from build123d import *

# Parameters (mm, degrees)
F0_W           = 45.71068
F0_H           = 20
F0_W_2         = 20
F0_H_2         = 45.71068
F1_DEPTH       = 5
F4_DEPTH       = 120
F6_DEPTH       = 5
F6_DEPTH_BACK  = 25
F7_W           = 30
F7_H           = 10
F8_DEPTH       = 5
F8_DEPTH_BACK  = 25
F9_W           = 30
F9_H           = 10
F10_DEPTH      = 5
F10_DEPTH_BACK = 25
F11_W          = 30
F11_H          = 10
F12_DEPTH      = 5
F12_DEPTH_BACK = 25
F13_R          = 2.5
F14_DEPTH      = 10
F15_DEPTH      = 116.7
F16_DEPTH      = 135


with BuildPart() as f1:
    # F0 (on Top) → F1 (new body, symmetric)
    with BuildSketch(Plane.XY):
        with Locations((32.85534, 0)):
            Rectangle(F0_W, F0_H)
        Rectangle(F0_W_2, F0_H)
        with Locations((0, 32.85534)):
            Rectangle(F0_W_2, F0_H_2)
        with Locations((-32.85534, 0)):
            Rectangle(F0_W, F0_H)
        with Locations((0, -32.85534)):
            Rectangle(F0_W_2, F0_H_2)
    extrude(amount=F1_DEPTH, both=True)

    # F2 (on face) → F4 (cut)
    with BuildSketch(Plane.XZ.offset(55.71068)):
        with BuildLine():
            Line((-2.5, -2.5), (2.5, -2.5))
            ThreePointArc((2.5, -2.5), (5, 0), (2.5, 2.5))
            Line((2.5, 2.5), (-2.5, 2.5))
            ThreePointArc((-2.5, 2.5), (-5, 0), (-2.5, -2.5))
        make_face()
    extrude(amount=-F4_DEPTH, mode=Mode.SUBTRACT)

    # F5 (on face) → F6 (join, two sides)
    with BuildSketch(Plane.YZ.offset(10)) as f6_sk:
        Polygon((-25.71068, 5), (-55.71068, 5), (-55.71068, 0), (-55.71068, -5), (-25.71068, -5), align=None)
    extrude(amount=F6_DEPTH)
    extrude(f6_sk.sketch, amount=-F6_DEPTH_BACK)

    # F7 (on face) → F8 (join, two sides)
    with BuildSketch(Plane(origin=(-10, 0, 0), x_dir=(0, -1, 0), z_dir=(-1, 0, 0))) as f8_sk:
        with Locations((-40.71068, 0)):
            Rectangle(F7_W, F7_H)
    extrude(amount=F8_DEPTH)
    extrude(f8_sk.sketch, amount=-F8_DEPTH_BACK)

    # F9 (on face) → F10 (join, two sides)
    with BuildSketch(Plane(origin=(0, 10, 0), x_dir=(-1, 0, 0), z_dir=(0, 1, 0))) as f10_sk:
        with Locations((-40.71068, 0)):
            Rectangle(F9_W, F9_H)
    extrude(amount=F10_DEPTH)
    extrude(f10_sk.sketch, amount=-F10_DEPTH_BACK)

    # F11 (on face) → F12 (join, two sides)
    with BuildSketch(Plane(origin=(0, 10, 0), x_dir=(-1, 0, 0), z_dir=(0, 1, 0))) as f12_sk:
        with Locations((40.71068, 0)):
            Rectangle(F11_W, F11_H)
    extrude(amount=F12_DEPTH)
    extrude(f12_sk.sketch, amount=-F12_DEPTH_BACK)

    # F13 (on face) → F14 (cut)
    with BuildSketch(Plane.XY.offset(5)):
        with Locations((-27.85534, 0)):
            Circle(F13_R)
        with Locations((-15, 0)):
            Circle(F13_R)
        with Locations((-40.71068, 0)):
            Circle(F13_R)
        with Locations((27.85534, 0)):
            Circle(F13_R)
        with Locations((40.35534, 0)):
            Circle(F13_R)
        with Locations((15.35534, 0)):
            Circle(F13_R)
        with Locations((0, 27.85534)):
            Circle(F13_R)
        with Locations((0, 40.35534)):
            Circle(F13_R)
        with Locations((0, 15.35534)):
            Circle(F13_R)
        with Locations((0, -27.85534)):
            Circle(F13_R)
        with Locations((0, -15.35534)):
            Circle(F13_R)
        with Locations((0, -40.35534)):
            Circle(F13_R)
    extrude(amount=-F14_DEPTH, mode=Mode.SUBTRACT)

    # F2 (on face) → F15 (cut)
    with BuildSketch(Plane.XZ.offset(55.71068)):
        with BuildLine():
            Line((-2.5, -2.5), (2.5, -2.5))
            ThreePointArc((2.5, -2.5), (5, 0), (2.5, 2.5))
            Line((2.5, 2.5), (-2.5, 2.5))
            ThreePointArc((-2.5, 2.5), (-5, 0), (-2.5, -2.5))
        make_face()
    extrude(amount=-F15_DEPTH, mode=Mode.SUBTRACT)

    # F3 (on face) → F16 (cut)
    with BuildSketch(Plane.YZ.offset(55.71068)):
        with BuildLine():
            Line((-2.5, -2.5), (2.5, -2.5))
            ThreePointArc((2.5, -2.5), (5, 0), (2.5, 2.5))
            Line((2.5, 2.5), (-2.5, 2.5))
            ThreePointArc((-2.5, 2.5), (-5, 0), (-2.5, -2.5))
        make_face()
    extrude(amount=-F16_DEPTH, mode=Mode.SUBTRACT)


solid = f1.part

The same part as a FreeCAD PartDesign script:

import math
import FreeCAD as App
import Part
import Sketcher
Q = App.Units.Quantity


def add_polygon(sketch, points):
    """Adds a closed chain of lines whose ends are joined by coincident constraints."""
    first, n = sketch.GeometryCount, len(points)
    for a, b in zip(points, points[1:] + points[:1]):
        sketch.addGeometry(Part.LineSegment(App.Vector(*a, 0), App.Vector(*b, 0)), False)
    for i in range(n):
        sketch.addConstraint(Sketcher.Constraint("Coincident", first + i, 2, first + (i + 1) % n, 1))

doc = App.newDocument("Part")
body = doc.addObject("PartDesign::Body", "Body")

sketch1 = body.newObject("Sketcher::SketchObject", "Sketch")
sketch1.AttachmentSupport = (doc.getObject("XY_Plane"), [""])
sketch1.MapMode = "FlatFace"
add_polygon(sketch1, [(56, -10), (56, 10), (10, 10), (10, 56), (-10, 56), (-10, 10), (-56, 10), (-56, -10), (-10, -10), (-10, -56), (10, -56), (10, -10)])
sketch1.addConstraint([
    Sketcher.Constraint("Vertical", 0),
    Sketcher.Constraint("Horizontal", 1),
    Sketcher.Constraint("Vertical", 2),
    Sketcher.Constraint("Horizontal", 3),
    Sketcher.Constraint("Vertical", 4),
    Sketcher.Constraint("Horizontal", 5),
    Sketcher.Constraint("Vertical", 6),
    Sketcher.Constraint("Horizontal", 7),
    Sketcher.Constraint("Vertical", 8),
    Sketcher.Constraint("Horizontal", 9),
    Sketcher.Constraint("Vertical", 10),
    Sketcher.Constraint("Horizontal", 11),
    Sketcher.Constraint("Symmetric", 0, 2, 6, 2, -1, 1),
    Sketcher.Constraint("Symmetric", 2, 2, 8, 2, -1, 1),
    Sketcher.Constraint("Symmetric", 4, 2, 10, 2, -1, 1),
    Sketcher.Constraint("Symmetric", 1, 2, 4, 2, -2),
    Sketcher.Constraint("Equal", 9, 0),
    Sketcher.Constraint("Equal", 11, 2),
    Sketcher.Constraint("DistanceX", 3, 2, 3, 1, Q("20 mm")),
    Sketcher.Constraint("DistanceX", 1, 2, 1, 1, Q("45.71068 mm")),
])
pad1 = body.newObject("PartDesign::Pad", "Pad")
pad1.Profile = sketch1
pad1.Length = 10
pad1.Midplane = True

sketch2 = body.newObject("Sketcher::SketchObject", "Sketch001")
sketch2.AttachmentSupport = (doc.getObject("XZ_Plane"), [""])
sketch2.MapMode = "FlatFace"
sketch2.AttachmentOffset = App.Placement(App.Vector(0, 0, 55.71068), App.Rotation())
sketch2.addGeometry([
    Part.LineSegment(App.Vector(-2.5, -2.5, 0), App.Vector(2.5, -2.5, 0)),
    Part.ArcOfCircle(Part.Circle(App.Vector(2.5, 0, 0), App.Vector(0, 0, 1), 2.5), math.radians(-90), math.radians(90)),
    Part.LineSegment(App.Vector(2.5, 2.5, 0), App.Vector(-2.5, 2.5, 0)),
    Part.ArcOfCircle(Part.Circle(App.Vector(-2.5, 0, 0), App.Vector(0, 0, 1), 2.5), math.radians(90), math.radians(270)),
], False)
sketch2.addConstraint([
    Sketcher.Constraint("Tangent", 0, 2, 1, 1),
    Sketcher.Constraint("Tangent", 1, 2, 2, 1),
    Sketcher.Constraint("Tangent", 2, 2, 3, 1),
    Sketcher.Constraint("Tangent", 3, 2, 0, 1),
    Sketcher.Constraint("Horizontal", 0),
    Sketcher.Constraint("Horizontal", 2),
    Sketcher.Constraint("Symmetric", 1, 3, 3, 3, -1, 1),
    Sketcher.Constraint("Radius", 1, Q("2.5 mm")),
    Sketcher.Constraint("DistanceX", 0, 1, 0, 2, Q("5 mm")),
])
pocket1 = body.newObject("PartDesign::Pocket", "Pocket")
pocket1.Profile = sketch2
pocket1.Length = 120

sketch3 = body.newObject("Sketcher::SketchObject", "Sketch002")
sketch3.AttachmentSupport = (doc.getObject("YZ_Plane"), [""])
sketch3.MapMode = "FlatFace"
sketch3.AttachmentOffset = App.Placement(App.Vector(0, 0, 10), App.Rotation())
add_polygon(sketch3, [(-26, 5), (-56, 5), (-56, -5), (-26, -5)])
sketch3.addConstraint([
    Sketcher.Constraint("Horizontal", 0),
    Sketcher.Constraint("Vertical", 1),
    Sketcher.Constraint("Horizontal", 2),
    Sketcher.Constraint("Vertical", 3),
    Sketcher.Constraint("DistanceX", 0, 2, 0, 1, Q("30 mm")),
    Sketcher.Constraint("DistanceY", 1, 2, 1, 1, Q("10 mm")),
    Sketcher.Constraint("DistanceY", -1, 1, 0, 2, Q("5 mm")),
    Sketcher.Constraint("DistanceX", 0, 2, -1, 1, Q("55.71068 mm")),
])
pad2 = body.newObject("PartDesign::Pad", "Pad001")
pad2.Profile = sketch3
pad2.Type = "TwoLengths"
pad2.Length = 5
pad2.Length2 = 25

sketch4 = body.newObject("Sketcher::SketchObject", "Sketch003")
sketch4.AttachmentSupport = (doc.getObject("YZ_Plane"), [""])
sketch4.MapMode = "FlatFace"
sketch4.AttachmentOffset = App.Placement(App.Vector(0, 0, -10), App.Rotation())
add_polygon(sketch4, [(56, 5), (56, -5), (26, -5), (26, 5)])
sketch4.addConstraint([
    Sketcher.Constraint("Vertical", 0),
    Sketcher.Constraint("Horizontal", 1),
    Sketcher.Constraint("Vertical", 2),
    Sketcher.Constraint("Horizontal", 3),
    Sketcher.Constraint("DistanceX", 1, 2, 1, 1, Q("30 mm")),
    Sketcher.Constraint("DistanceY", 0, 2, 0, 1, Q("10 mm")),
    Sketcher.Constraint("DistanceY", 0, 2, -1, 1, Q("5 mm")),
    Sketcher.Constraint("DistanceX", -1, 1, 0, 2, Q("55.71068 mm")),
])
pad3 = body.newObject("PartDesign::Pad", "Pad002")
pad3.Profile = sketch4
pad3.Type = "TwoLengths"
pad3.Length = 5
pad3.Length2 = 25
pad3.Reversed = True

sketch5 = body.newObject("Sketcher::SketchObject", "Sketch004")
sketch5.AttachmentSupport = (doc.getObject("XZ_Plane"), [""])
sketch5.MapMode = "FlatFace"
sketch5.AttachmentOffset = App.Placement(App.Vector(0, 0, -10), App.Rotation())
add_polygon(sketch5, [(56, 5), (56, -5), (26, -5), (26, 5)])
sketch5.addConstraint([
    Sketcher.Constraint("Vertical", 0),
    Sketcher.Constraint("Horizontal", 1),
    Sketcher.Constraint("Vertical", 2),
    Sketcher.Constraint("Horizontal", 3),
    Sketcher.Constraint("DistanceX", 1, 2, 1, 1, Q("30 mm")),
    Sketcher.Constraint("DistanceY", 0, 2, 0, 1, Q("10 mm")),
    Sketcher.Constraint("DistanceY", 0, 2, -1, 1, Q("5 mm")),
    Sketcher.Constraint("DistanceX", -1, 1, 0, 2, Q("55.71068 mm")),
])
pad4 = body.newObject("PartDesign::Pad", "Pad003")
pad4.Profile = sketch5
pad4.Type = "TwoLengths"
pad4.Length = 5
pad4.Length2 = 25
pad4.Reversed = True

sketch6 = body.newObject("Sketcher::SketchObject", "Sketch005")
sketch6.AttachmentSupport = (doc.getObject("XZ_Plane"), [""])
sketch6.MapMode = "FlatFace"
sketch6.AttachmentOffset = App.Placement(App.Vector(0, 0, -10), App.Rotation())
add_polygon(sketch6, [(-26, 5), (-26, -5), (-56, -5), (-56, 5)])
sketch6.addConstraint([
    Sketcher.Constraint("Vertical", 0),
    Sketcher.Constraint("Horizontal", 1),
    Sketcher.Constraint("Vertical", 2),
    Sketcher.Constraint("Horizontal", 3),
    Sketcher.Constraint("DistanceX", 1, 2, 1, 1, Q("30 mm")),
    Sketcher.Constraint("DistanceY", 0, 2, 0, 1, Q("10 mm")),
    Sketcher.Constraint("DistanceY", 0, 2, -1, 1, Q("5 mm")),
    Sketcher.Constraint("DistanceX", 0, 2, -1, 1, Q("25.71068 mm")),
])
pad5 = body.newObject("PartDesign::Pad", "Pad004")
pad5.Profile = sketch6
pad5.Type = "TwoLengths"
pad5.Length = 5
pad5.Length2 = 25
pad5.Reversed = True

sketch7 = body.newObject("Sketcher::SketchObject", "Sketch006")
sketch7.AttachmentSupport = (doc.getObject("XY_Plane"), [""])
sketch7.MapMode = "FlatFace"
sketch7.AttachmentOffset = App.Placement(App.Vector(0, 0, 5), App.Rotation())
sketch7.addGeometry([
    Part.Circle(App.Vector(-27.9, 0, 0), App.Vector(0, 0, 1), 2.5),
    Part.Circle(App.Vector(-15, 0, 0), App.Vector(0, 0, 1), 2.5),
    Part.Circle(App.Vector(-40.7, 0, 0), App.Vector(0, 0, 1), 2.5),
    Part.Circle(App.Vector(27.9, 0, 0), App.Vector(0, 0, 1), 2.5),
    Part.Circle(App.Vector(40.4, 0, 0), App.Vector(0, 0, 1), 2.5),
    Part.Circle(App.Vector(15.4, 0, 0), App.Vector(0, 0, 1), 2.5),
    Part.Circle(App.Vector(0, 27.9, 0), App.Vector(0, 0, 1), 2.5),
    Part.Circle(App.Vector(0, 40.4, 0), App.Vector(0, 0, 1), 2.5),
    Part.Circle(App.Vector(0, 15.4, 0), App.Vector(0, 0, 1), 2.5),
    Part.Circle(App.Vector(0, -27.9, 0), App.Vector(0, 0, 1), 2.5),
    Part.Circle(App.Vector(0, -15.4, 0), App.Vector(0, 0, 1), 2.5),
    Part.Circle(App.Vector(0, -40.4, 0), App.Vector(0, 0, 1), 2.5),
], False)
sketch7.addConstraint([
    Sketcher.Constraint("Equal", 0, 1),
    Sketcher.Constraint("Equal", 1, 2),
    Sketcher.Constraint("Equal", 2, 3),
    Sketcher.Constraint("Equal", 3, 4),
    Sketcher.Constraint("Equal", 4, 5),
    Sketcher.Constraint("Equal", 5, 6),
    Sketcher.Constraint("Equal", 6, 7),
    Sketcher.Constraint("Equal", 7, 8),
    Sketcher.Constraint("Equal", 8, 9),
    Sketcher.Constraint("Equal", 9, 10),
    Sketcher.Constraint("Equal", 10, 11),
    Sketcher.Constraint("Symmetric", 0, 3, 3, 3, -1, 1),
    Sketcher.Constraint("Symmetric", 6, 3, 9, 3, -1, 1),
    Sketcher.Constraint("Symmetric", 8, 3, 10, 3, -1, 1),
    Sketcher.Constraint("Symmetric", 7, 3, 11, 3, -1, 1),
    Sketcher.Constraint("PointOnObject", 0, 3, -1),
    Sketcher.Constraint("PointOnObject", 1, 3, -1),
    Sketcher.Constraint("PointOnObject", 2, 3, -1),
    Sketcher.Constraint("PointOnObject", 4, 3, -1),
    Sketcher.Constraint("PointOnObject", 5, 3, -1),
    Sketcher.Constraint("PointOnObject", 6, 3, -2),
    Sketcher.Constraint("PointOnObject", 7, 3, -2),
    Sketcher.Constraint("PointOnObject", 8, 3, -2),
    Sketcher.Constraint("Diameter", 0, Q("5 mm")),
    Sketcher.Constraint("DistanceX", 1, 3, -1, 1, Q("15 mm")),
    Sketcher.Constraint("DistanceX", 5, 3, 4, 3, Q("25 mm")),
    Sketcher.Constraint("DistanceY", 8, 3, 7, 3, Q("25 mm")),
    Sketcher.Constraint("DistanceX", 3, 3, 4, 3, Q("12.5 mm")),
    Sketcher.Constraint("DistanceY", 6, 3, 7, 3, Q("12.5 mm")),
    Sketcher.Constraint("DistanceX", 0, 3, -1, 1, Q("27.85534 mm")),
    Sketcher.Constraint("DistanceX", 2, 3, -1, 1, Q("40.71068 mm")),
    Sketcher.Constraint("DistanceY", -1, 1, 6, 3, Q("27.85534 mm")),
])
pocket2 = body.newObject("PartDesign::Pocket", "Pocket001")
pocket2.Profile = sketch7
pocket2.Length = 10

sketch8 = body.newObject("Sketcher::SketchObject", "Sketch007")
sketch8.AttachmentSupport = (doc.getObject("XZ_Plane"), [""])
sketch8.MapMode = "FlatFace"
sketch8.AttachmentOffset = App.Placement(App.Vector(0, 0, 55.71068), App.Rotation())
sketch8.addGeometry([
    Part.LineSegment(App.Vector(-2.5, -2.5, 0), App.Vector(2.5, -2.5, 0)),
    Part.ArcOfCircle(Part.Circle(App.Vector(2.5, 0, 0), App.Vector(0, 0, 1), 2.5), math.radians(-90), math.radians(90)),
    Part.LineSegment(App.Vector(2.5, 2.5, 0), App.Vector(-2.5, 2.5, 0)),
    Part.ArcOfCircle(Part.Circle(App.Vector(-2.5, 0, 0), App.Vector(0, 0, 1), 2.5), math.radians(90), math.radians(270)),
], False)
sketch8.addConstraint([
    Sketcher.Constraint("Tangent", 0, 2, 1, 1),
    Sketcher.Constraint("Tangent", 1, 2, 2, 1),
    Sketcher.Constraint("Tangent", 2, 2, 3, 1),
    Sketcher.Constraint("Tangent", 3, 2, 0, 1),
    Sketcher.Constraint("Horizontal", 0),
    Sketcher.Constraint("Horizontal", 2),
    Sketcher.Constraint("Symmetric", 1, 3, 3, 3, -1, 1),
    Sketcher.Constraint("Radius", 1, Q("2.5 mm")),
    Sketcher.Constraint("DistanceX", 0, 1, 0, 2, Q("5 mm")),
])
pocket3 = body.newObject("PartDesign::Pocket", "Pocket002")
pocket3.Profile = sketch8
pocket3.Length = 116.7

sketch9 = body.newObject("Sketcher::SketchObject", "Sketch008")
sketch9.AttachmentSupport = (doc.getObject("YZ_Plane"), [""])
sketch9.MapMode = "FlatFace"
sketch9.AttachmentOffset = App.Placement(App.Vector(0, 0, 55.71068), App.Rotation())
sketch9.addGeometry([
    Part.LineSegment(App.Vector(-2.5, -2.5, 0), App.Vector(2.5, -2.5, 0)),
    Part.ArcOfCircle(Part.Circle(App.Vector(2.5, 0, 0), App.Vector(0, 0, 1), 2.5), math.radians(-90), math.radians(90)),
    Part.LineSegment(App.Vector(2.5, 2.5, 0), App.Vector(-2.5, 2.5, 0)),
    Part.ArcOfCircle(Part.Circle(App.Vector(-2.5, 0, 0), App.Vector(0, 0, 1), 2.5), math.radians(90), math.radians(270)),
], False)
sketch9.addConstraint([
    Sketcher.Constraint("Tangent", 0, 2, 1, 1),
    Sketcher.Constraint("Tangent", 1, 2, 2, 1),
    Sketcher.Constraint("Tangent", 2, 2, 3, 1),
    Sketcher.Constraint("Tangent", 3, 2, 0, 1),
    Sketcher.Constraint("Horizontal", 0),
    Sketcher.Constraint("Horizontal", 2),
    Sketcher.Constraint("Symmetric", 1, 3, 3, 3, -1, 1),
    Sketcher.Constraint("Radius", 1, Q("2.5 mm")),
    Sketcher.Constraint("DistanceX", 0, 1, 0, 2, Q("5 mm")),
])
pocket4 = body.newObject("PartDesign::Pocket", "Pocket003")
pocket4.Profile = sketch9
pocket4.Length = 135

doc.recompute()
